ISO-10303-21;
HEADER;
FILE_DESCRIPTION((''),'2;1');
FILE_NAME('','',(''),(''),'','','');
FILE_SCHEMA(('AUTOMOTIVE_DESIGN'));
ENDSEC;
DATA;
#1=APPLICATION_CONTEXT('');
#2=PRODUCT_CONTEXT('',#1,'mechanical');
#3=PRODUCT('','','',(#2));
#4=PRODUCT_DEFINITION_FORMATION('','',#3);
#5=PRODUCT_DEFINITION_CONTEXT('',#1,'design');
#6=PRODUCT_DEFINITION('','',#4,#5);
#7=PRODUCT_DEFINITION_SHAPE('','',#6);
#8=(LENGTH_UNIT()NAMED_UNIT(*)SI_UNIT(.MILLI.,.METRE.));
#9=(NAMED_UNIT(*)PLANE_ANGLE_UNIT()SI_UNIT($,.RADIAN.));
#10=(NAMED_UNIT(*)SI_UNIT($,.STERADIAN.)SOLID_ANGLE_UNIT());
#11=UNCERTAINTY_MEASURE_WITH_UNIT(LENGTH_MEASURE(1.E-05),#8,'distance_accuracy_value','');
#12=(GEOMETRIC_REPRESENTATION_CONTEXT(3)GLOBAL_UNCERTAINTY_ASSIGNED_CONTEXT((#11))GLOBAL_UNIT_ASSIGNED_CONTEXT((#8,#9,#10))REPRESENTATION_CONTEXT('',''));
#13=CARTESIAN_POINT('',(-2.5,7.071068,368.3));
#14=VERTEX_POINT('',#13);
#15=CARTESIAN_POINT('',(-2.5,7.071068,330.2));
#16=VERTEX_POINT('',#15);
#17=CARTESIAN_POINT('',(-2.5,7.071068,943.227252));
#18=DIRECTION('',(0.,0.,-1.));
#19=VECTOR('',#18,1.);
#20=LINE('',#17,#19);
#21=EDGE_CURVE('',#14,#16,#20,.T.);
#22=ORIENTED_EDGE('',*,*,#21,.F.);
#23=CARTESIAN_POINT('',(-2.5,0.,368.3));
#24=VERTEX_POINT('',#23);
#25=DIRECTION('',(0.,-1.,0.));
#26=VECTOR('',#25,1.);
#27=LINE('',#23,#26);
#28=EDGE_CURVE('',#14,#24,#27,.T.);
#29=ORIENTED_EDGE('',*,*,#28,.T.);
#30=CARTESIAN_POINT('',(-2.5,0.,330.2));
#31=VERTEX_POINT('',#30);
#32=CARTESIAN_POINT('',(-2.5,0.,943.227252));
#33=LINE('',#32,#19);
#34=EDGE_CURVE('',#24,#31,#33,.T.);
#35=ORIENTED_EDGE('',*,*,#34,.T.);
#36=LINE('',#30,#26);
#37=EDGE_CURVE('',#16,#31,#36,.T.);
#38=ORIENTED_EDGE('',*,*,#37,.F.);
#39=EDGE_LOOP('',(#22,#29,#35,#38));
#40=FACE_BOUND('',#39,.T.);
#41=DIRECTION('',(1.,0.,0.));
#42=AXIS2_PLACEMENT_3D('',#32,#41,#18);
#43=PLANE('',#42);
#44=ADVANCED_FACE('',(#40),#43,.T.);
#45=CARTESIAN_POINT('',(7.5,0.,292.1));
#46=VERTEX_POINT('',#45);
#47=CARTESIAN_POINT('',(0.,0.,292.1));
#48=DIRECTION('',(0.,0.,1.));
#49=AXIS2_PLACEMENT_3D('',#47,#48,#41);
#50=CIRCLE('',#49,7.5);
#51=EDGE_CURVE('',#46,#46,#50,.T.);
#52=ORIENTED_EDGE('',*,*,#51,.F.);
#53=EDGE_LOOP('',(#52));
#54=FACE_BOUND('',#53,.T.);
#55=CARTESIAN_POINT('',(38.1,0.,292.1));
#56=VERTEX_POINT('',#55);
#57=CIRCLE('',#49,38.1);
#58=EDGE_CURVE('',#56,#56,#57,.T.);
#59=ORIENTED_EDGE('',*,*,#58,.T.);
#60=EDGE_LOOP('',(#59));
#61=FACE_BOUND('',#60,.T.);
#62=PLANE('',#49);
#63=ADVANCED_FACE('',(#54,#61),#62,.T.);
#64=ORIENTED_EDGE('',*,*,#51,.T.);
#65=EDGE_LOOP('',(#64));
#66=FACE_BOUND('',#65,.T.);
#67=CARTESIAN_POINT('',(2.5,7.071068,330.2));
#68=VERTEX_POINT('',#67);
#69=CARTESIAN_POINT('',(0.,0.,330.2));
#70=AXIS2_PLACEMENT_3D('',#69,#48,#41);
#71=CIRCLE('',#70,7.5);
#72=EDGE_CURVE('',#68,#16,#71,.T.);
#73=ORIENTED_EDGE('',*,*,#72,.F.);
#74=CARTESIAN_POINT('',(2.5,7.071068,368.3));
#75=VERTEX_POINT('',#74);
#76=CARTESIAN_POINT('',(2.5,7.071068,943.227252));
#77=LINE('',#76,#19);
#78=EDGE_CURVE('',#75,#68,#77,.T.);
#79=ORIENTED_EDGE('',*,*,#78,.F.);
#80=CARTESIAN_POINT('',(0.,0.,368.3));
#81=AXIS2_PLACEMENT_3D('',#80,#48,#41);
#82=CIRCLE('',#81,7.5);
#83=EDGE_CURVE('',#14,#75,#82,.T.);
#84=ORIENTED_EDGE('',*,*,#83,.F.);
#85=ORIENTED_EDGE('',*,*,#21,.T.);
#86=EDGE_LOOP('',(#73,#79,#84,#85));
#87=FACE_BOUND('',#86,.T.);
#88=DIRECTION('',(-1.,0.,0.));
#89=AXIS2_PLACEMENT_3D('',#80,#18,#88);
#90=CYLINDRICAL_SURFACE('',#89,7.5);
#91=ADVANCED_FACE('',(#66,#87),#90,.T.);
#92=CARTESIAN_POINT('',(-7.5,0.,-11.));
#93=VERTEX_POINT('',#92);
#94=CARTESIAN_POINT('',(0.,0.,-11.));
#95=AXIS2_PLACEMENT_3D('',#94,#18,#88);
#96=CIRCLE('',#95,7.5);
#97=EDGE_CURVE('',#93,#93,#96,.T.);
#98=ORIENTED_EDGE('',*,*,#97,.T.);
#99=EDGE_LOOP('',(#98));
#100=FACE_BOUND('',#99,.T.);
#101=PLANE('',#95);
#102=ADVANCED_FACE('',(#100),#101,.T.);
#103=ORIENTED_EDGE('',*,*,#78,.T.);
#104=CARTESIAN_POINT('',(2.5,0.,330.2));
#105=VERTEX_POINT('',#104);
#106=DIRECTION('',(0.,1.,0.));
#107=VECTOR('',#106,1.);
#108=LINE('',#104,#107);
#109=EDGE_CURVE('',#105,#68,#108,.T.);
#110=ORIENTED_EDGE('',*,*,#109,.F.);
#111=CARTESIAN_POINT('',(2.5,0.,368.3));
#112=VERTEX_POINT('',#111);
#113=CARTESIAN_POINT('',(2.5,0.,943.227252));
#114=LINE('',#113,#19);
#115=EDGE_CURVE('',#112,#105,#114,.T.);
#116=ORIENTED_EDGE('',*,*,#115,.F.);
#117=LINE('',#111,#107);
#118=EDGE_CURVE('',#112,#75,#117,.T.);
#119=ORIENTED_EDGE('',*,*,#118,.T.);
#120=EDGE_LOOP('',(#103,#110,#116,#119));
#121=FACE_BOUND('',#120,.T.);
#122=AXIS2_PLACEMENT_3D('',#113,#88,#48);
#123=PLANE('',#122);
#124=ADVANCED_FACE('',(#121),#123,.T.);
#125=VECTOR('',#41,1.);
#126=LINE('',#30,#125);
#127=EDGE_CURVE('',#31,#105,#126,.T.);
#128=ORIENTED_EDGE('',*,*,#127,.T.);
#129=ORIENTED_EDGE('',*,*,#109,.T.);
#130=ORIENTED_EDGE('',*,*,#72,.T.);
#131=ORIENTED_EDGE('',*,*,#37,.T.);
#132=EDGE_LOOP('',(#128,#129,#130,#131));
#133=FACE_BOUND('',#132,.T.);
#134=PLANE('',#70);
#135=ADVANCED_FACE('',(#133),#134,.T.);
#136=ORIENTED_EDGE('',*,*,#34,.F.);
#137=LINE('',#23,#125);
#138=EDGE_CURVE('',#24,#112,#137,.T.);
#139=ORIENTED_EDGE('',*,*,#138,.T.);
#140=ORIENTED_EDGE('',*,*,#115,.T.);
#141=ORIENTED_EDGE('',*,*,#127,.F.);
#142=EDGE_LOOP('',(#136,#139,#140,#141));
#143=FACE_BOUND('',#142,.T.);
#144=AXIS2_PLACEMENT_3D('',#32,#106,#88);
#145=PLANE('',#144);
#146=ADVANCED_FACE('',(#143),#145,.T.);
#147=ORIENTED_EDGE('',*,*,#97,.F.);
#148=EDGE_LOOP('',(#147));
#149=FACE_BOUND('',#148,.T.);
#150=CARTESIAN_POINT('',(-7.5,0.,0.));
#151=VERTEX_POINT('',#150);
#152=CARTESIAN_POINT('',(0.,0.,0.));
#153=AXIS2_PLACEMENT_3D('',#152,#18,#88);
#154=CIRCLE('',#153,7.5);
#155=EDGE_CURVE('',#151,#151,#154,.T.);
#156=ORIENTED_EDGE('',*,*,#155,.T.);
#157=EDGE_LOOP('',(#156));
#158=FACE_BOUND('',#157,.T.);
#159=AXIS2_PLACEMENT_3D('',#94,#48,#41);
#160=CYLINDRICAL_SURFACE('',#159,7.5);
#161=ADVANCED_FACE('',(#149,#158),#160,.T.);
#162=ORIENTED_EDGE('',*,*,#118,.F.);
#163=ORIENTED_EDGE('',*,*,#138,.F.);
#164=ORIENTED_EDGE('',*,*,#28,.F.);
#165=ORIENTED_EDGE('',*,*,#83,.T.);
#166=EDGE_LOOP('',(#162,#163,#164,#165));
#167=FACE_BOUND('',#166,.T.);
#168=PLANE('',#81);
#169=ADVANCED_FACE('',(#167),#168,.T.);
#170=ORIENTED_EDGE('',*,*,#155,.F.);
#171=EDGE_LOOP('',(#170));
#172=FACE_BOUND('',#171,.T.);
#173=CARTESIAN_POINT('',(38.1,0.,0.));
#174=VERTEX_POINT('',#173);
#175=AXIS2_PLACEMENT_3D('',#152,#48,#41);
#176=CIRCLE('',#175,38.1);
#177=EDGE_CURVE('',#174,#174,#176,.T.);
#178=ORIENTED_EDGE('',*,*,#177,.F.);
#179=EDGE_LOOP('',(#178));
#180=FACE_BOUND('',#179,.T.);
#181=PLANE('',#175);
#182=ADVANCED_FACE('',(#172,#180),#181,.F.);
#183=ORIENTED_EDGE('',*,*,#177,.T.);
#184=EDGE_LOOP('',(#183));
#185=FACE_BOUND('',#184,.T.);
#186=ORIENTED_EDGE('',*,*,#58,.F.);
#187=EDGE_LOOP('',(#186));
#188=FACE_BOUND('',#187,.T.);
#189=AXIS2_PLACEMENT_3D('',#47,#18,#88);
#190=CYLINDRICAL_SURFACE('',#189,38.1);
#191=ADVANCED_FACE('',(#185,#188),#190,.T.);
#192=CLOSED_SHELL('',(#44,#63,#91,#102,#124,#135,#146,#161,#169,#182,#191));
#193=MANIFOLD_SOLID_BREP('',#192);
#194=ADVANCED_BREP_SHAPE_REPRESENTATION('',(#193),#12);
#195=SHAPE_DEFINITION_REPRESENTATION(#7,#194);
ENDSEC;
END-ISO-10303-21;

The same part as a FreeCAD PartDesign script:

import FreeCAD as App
import Part
import Sketcher
from FreeCAD import Vector
Q = App.Units.Quantity

doc = App.newDocument("Part")
body = doc.addObject("PartDesign::Body", "Body")

# Sketch on XY plane
sketch1 = body.newObject("Sketcher::SketchObject", "Sketch")
sketch1.AttachmentSupport = (doc.getObject("XY_Plane"), [""])
sketch1.MapMode = "FlatFace"
sketch1.addGeometry(Part.Circle(Vector(0, 0, 0), Vector(0, 0, 1), 38), False)
sketch1.addConstraint(Sketcher.Constraint("Coincident", 0, 3, -1, 1))
sketch1.addConstraint(Sketcher.Constraint("Diameter", 0, Q("76.2 mm")))
pad1 = body.newObject("PartDesign::Pad", "Pad")
pad1.Profile = sketch1
pad1.Length = 292.1

# Sketch on XY plane
sketch2 = body.newObject("Sketcher::SketchObject", "Sketch001")
sketch2.AttachmentSupport = (doc.getObject("XY_Plane"), [""])
sketch2.MapMode = "FlatFace"
sketch2.AttachmentOffset = App.Placement(Vector(0, 0, 292.1), App.Rotation())
sketch2.addGeometry(Part.Circle(Vector(0, 0, 0), Vector(0, 0, 1), 8), False)
sketch2.addConstraint(Sketcher.Constraint("Coincident", 0, 3, -1, 1))
sketch2.addConstraint(Sketcher.Constraint("Diameter", 0, Q("15 mm")))
pad2 = body.newObject("PartDesign::Pad", "Pad001")
pad2.Profile = sketch2
pad2.Length = 76.2

# Sketch on XY plane
sketch3 = body.newObject("Sketcher::SketchObject", "Sketch002")
sketch3.AttachmentSupport = (doc.getObject("XY_Plane"), [""])
sketch3.MapMode = "FlatFace"
sketch3.AttachmentOffset = App.Placement(Vector(0, 0, 368.3), App.Rotation())
sketch3.addGeometry(Part.LineSegment(Vector(-2, 0, 0), Vector(2, 0, 0)), False)
sketch3.addGeometry(Part.LineSegment(Vector(2, 0, 0), Vector(2, 401, 0)), False)
sketch3.addGeometry(Part.LineSegment(Vector(2, 401, 0), Vector(-2, 401, 0)), False)
sketch3.addGeometry(Part.LineSegment(Vector(-2, 401, 0), Vector(-2, 0, 0)), False)
sketch3.addConstraint(Sketcher.Constraint("Coincident", 0, 2, 1, 1))
sketch3.addConstraint(Sketcher.Constraint("Coincident", 1, 2, 2, 1))
sketch3.addConstraint(Sketcher.Constraint("Coincident", 2, 2, 3, 1))
sketch3.addConstraint(Sketcher.Constraint("Coincident", 3, 2, 0, 1))
sketch3.addConstraint(Sketcher.Constraint("Horizontal", 0))
sketch3.addConstraint(Sketcher.Constraint("Vertical", 1))
sketch3.addConstraint(Sketcher.Constraint("Horizontal", 2))
sketch3.addConstraint(Sketcher.Constraint("Vertical", 3))
sketch3.addConstraint(Sketcher.Constraint("Symmetric", 0, 2, 3, 2, -1, 1))
sketch3.addConstraint(Sketcher.Constraint("DistanceX", 0, 1, 0, 2, Q("5 mm")))
sketch3.addConstraint(Sketcher.Constraint("DistanceY", 1, 1, 1, 2, Q("401.483298 mm")))
pocket1 = body.newObject("PartDesign::Pocket", "Pocket")
pocket1.Profile = sketch3
pocket1.Type = "TwoLengths"
pocket1.Length = 1
pocket1.Length2 = 38.1
pocket1.Reversed = True

# Sketch on XY plane
sketch4 = body.newObject("Sketcher::SketchObject", "Sketch003")
sketch4.AttachmentSupport = (doc.getObject("XY_Plane"), [""])
sketch4.MapMode = "FlatFace"
sketch4.addGeometry(Part.Circle(Vector(0, 0, 0), Vector(0, 0, 1), 8), False)
sketch4.addConstraint(Sketcher.Constraint("Coincident", 0, 3, -1, 1))
sketch4.addConstraint(Sketcher.Constraint("Diameter", 0, Q("15 mm")))
pad3 = body.newObject("PartDesign::Pad", "Pad002")
pad3.Profile = sketch4
pad3.Length = 11
pad3.Reversed = True

doc.recompute()
